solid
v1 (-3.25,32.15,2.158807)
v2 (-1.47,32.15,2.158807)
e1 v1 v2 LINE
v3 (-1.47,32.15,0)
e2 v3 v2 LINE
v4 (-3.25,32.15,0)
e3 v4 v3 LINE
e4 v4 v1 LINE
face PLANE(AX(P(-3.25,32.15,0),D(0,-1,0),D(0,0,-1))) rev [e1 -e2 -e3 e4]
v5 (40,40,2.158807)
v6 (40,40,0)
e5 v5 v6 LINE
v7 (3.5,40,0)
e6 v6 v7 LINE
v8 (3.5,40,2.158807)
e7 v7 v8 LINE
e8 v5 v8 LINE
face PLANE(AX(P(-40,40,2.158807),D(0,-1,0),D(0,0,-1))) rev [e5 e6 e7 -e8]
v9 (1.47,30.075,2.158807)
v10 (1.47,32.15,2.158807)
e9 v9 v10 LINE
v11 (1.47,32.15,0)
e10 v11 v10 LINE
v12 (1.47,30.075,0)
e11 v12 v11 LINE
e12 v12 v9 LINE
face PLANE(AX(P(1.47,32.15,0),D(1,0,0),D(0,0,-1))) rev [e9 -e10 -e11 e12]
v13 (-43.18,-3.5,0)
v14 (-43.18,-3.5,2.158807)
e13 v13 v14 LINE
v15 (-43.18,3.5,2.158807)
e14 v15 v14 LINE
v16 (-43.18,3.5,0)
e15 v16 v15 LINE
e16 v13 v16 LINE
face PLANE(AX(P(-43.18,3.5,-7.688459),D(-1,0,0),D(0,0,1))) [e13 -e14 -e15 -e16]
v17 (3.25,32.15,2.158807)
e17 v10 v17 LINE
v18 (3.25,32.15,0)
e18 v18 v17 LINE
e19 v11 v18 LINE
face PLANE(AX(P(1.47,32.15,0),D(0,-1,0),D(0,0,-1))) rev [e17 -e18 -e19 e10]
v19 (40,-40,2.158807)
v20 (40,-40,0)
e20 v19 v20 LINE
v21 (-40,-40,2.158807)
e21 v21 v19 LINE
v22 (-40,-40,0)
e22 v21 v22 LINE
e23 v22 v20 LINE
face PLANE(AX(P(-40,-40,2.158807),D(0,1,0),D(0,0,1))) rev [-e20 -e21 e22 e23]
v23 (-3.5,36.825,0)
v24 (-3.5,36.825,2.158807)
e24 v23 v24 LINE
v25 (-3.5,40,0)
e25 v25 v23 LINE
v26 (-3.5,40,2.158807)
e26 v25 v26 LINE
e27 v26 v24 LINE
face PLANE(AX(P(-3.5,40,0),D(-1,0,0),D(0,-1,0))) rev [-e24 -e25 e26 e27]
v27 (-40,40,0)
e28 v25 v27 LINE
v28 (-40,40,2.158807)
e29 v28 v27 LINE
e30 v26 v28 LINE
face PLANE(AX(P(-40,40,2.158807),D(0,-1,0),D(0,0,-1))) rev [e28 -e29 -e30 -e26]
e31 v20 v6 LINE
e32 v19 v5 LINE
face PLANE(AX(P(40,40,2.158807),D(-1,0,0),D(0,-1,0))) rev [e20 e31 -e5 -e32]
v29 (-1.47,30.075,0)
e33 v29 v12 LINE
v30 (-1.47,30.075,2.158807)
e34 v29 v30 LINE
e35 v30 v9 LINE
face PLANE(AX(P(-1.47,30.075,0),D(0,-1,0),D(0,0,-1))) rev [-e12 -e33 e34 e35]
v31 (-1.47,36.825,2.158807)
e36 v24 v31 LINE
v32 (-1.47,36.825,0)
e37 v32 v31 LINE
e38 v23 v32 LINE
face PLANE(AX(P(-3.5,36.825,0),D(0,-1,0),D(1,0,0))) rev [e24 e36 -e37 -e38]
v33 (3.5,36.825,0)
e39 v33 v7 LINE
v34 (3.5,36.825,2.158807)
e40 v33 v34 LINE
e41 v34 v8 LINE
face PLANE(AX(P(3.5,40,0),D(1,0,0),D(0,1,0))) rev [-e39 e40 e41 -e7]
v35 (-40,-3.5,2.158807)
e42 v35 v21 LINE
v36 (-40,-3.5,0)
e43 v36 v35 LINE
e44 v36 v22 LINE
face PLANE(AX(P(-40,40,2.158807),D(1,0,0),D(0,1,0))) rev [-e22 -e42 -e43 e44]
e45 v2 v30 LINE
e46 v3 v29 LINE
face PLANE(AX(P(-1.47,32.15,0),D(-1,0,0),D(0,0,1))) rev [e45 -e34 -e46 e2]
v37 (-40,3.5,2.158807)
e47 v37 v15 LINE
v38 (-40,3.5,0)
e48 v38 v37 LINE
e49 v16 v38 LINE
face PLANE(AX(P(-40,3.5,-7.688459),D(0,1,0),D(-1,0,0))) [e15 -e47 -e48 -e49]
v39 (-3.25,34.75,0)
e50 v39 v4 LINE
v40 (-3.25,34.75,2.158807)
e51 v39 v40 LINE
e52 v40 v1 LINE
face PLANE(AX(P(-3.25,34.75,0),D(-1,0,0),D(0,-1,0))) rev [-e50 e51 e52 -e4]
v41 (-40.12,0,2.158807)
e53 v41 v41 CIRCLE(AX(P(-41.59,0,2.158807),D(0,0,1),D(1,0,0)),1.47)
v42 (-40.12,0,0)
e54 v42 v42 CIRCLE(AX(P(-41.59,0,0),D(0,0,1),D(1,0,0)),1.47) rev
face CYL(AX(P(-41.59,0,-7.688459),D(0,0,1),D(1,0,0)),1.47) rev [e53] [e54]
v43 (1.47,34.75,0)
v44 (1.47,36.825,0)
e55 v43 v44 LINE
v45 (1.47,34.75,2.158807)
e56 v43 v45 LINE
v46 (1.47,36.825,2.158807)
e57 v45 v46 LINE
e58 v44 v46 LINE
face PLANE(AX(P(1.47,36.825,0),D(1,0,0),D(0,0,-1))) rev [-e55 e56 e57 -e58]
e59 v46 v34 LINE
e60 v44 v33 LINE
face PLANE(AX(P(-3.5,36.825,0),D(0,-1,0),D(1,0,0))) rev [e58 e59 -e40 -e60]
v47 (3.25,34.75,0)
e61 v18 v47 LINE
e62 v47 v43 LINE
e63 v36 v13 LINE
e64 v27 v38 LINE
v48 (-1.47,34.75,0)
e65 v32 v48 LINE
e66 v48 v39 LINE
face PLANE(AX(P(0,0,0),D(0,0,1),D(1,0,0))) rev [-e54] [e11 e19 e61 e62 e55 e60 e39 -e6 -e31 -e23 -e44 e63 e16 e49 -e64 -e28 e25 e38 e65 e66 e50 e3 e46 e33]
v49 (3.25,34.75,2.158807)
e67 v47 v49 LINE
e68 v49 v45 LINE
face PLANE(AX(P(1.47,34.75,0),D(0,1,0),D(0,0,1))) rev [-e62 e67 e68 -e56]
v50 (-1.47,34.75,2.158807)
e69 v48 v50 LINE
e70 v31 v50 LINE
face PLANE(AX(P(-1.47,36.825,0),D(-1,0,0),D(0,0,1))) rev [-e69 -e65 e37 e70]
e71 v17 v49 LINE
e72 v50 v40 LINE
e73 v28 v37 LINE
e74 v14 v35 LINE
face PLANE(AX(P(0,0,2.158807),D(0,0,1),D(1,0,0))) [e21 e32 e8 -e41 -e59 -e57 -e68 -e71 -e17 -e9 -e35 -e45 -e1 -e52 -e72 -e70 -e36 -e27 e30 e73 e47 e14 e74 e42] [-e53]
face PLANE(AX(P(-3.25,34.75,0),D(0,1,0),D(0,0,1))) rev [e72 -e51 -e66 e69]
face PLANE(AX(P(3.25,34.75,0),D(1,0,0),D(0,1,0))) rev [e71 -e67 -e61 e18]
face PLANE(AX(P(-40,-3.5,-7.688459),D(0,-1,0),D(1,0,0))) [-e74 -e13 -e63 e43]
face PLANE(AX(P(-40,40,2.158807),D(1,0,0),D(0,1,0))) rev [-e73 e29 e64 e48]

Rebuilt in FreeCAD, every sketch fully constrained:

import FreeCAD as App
import Part
import Sketcher


def add_polygon(sketch, points):
    """Adds a closed chain of lines whose ends are joined by coincident constraints."""
    first, n = sketch.GeometryCount, len(points)
    for a, b in zip(points, points[1:] + points[:1]):
        sketch.addGeometry(Part.LineSegment(App.Vector(*a, 0), App.Vector(*b, 0)), False)
    for i in range(n):
        sketch.addConstraint(Sketcher.Constraint("Coincident", first + i, 2, first + (i + 1) % n, 1))

doc = App.newDocument("Part")
params = doc.addObject("Spreadsheet::Sheet", "Params")
for row, (alias, value) in enumerate([
    ("sketch1_width", "80 mm"),
    ("pad1_length", "2.158807 mm"),
    ("sketch2_width", "7 mm"),
    ("sketch3_height", "2.6 mm"),
    ("sketch3_width", "1.78 mm"),
    ("sketch3_width2", "2.94 mm"),
    ("sketch4_diameter", "2.94 mm"),
    ("sketch4_height", "7 mm"),
    ("sketch4_width", "3.18 mm"),
    ("pad2_length", "2.158807 mm"),
], start=1):
    params.set(f"A{row}", alias)
    params.set(f"B{row}", "=" + value)
    params.setAlias(f"B{row}", alias)

body = doc.addObject("PartDesign::Body", "Body")

# Sketch on XY plane
sketch1 = body.newObject("Sketcher::SketchObject", "Sketch")
sketch1.AttachmentSupport = (doc.getObject("XY_Plane"), [""])
sketch1.MapMode = "FlatFace"
add_polygon(sketch1, [(-40, 40), (-40, -40), (40, -40), (40, 40)])  # lines 0-3
sketch1.addConstraint([
    Sketcher.Constraint("Vertical", 0),
    Sketcher.Constraint("Horizontal", 1),
    Sketcher.Constraint("Vertical", 2),
    Sketcher.Constraint("Horizontal", 3),
    Sketcher.Constraint("Symmetric", 0, 2, 2, 2, -1, 1),
    Sketcher.Constraint("Equal", 3, 0),
    Sketcher.Constraint("DistanceX", 1, 1, 1, 2, 80.0),
])
sketch1.setExpression("Constraints[10]", "Params.sketch1_width")
pad1 = body.newObject("PartDesign::Pad", "Pad")
pad1.Profile = sketch1
pad1.setExpression("Length", "Params.pad1_length")

# Sketch on XY plane
sketch2 = body.newObject("Sketcher::SketchObject", "Sketch001")
sketch2.AttachmentSupport = (doc.getObject("XY_Plane"), [""])
sketch2.MapMode = "FlatFace"
sketch2.AttachmentOffset = App.Placement(App.Vector(0, 0, 2.158807), App.Rotation())
add_polygon(sketch2, [(-3.5, 40), (-3.5, 36.8), (3.5, 36.8), (3.5, 40)])  # lines 0-3
sketch2.addConstraint([
    Sketcher.Constraint("Vertical", 0),
    Sketcher.Constraint("Horizontal", 1),
    Sketcher.Constraint("Vertical", 2),
    Sketcher.Constraint("Horizontal", 3),
    Sketcher.Constraint("DistanceX", 1, 1, 1, 2, 7.0),
    Sketcher.Constraint("DistanceY", -1, 1, 2, 2, 40.0),
    Sketcher.Constraint("DistanceX", 0, 2, -1, 1, 3.5),
    Sketcher.Constraint("DistanceY", 0, 2, 0, 1, 3.175),
])
sketch2.setExpression("Constraints[8]", "Params.sketch2_width")
pocket1 = body.newObject("PartDesign::Pocket", "Pocket")
pocket1.Profile = sketch2
pocket1.Type = "ThroughAll"

# Sketch on XY plane
sketch3 = body.newObject("Sketcher::SketchObject", "Sketch002")
sketch3.AttachmentSupport = (doc.getObject("XY_Plane"), [""])
sketch3.MapMode = "FlatFace"
sketch3.AttachmentOffset = App.Placement(App.Vector(0, 0, 2.158807), App.Rotation())
add_polygon(sketch3, [(3.2, 34.8), (1.5, 34.8), (1.5, 36.8), (-1.5, 36.8), (-1.5, 34.8), (-3.2, 34.8), (-3.2, 32.1), (-1.5, 32.1), (-1.5, 30.1), (1.5, 30.1), (1.5, 32.1), (3.2, 32.1)])  # lines 0-11
sketch3.addConstraint([
    Sketcher.Constraint("Horizontal", 0),
    Sketcher.Constraint("Vertical", 1),
    Sketcher.Constraint("Horizontal", 2),
    Sketcher.Constraint("Vertical", 3),
    Sketcher.Constraint("Horizontal", 4),
    Sketcher.Constraint("Vertical", 5),
    Sketcher.Constraint("Horizontal", 6),
    Sketcher.Constraint("Vertical", 7),
    Sketcher.Constraint("Horizontal", 8),
    Sketcher.Constraint("Vertical", 9),
    Sketcher.Constraint("Horizontal", 10),
    Sketcher.Constraint("Vertical", 11),
    Sketcher.Constraint("Symmetric", 0, 2, 3, 2, -2),
    Sketcher.Constraint("Symmetric", 6, 2, 9, 2, -2),
    Sketcher.Constraint("Vertical", 3, 2, 6, 2),
    Sketcher.Constraint("Equal", 0, 4),
    Sketcher.Constraint("Equal", 3, 7),
    Sketcher.Constraint("DistanceY", 5, 2, 5, 1, 2.6),
    Sketcher.Constraint("DistanceX", 0, 2, 0, 1, 1.78),
    Sketcher.Constraint("DistanceX", 2, 2, 2, 1, 2.94),
    Sketcher.Constraint("DistanceY", 1, 1, 1, 2, 2.075),
    Sketcher.Constraint("DistanceY", -1, 1, 0, 2, 34.75),
])
sketch3.setExpression("Constraints[29]", "Params.sketch3_height")
sketch3.setExpression("Constraints[30]", "Params.sketch3_width")
sketch3.setExpression("Constraints[31]", "Params.sketch3_width2")
pocket2 = body.newObject("PartDesign::Pocket", "Pocket001")
pocket2.Profile = sketch3
pocket2.Type = "ThroughAll"

# Sketch on XY plane
sketch4 = body.newObject("Sketcher::SketchObject", "Sketch003")
sketch4.AttachmentSupport = (doc.getObject("XY_Plane"), [""])
sketch4.MapMode = "FlatFace"
sketch4.AttachmentOffset = App.Placement(App.Vector(0, 0, 2.158807), App.Rotation())
add_polygon(sketch4, [(-43.2, 3.5), (-43.2, -3.5), (-40, -3.5), (-40, 3.5)])  # lines 0-3
sketch4.addGeometry(Part.Circle(App.Vector(-41.6, 0, 0), App.Vector(0, 0, 1), 1.5), False)  # 4
sketch4.addConstraint([
    Sketcher.Constraint("Vertical", 0),
    Sketcher.Constraint("Horizontal", 1),
    Sketcher.Constraint("Vertical", 2),
    Sketcher.Constraint("Horizontal", 3),
    Sketcher.Constraint("PointOnObject", 4, 3, -1),
    Sketcher.Constraint("Diameter", 4, 2.94),
    Sketcher.Constraint("DistanceY", 0, 2, 0, 1, 7.0),
    Sketcher.Constraint("DistanceX", 1, 2, -1, 1, 40.0),
    Sketcher.Constraint("DistanceX", 1, 1, 1, 2, 3.18),
    Sketcher.Constraint("DistanceY", 0, 2, -1, 1, 3.5),
    Sketcher.Constraint("DistanceX", 4, 3, -1, 1, 41.59),
])
sketch4.setExpression("Constraints[9]", "Params.sketch4_diameter")
sketch4.setExpression("Constraints[10]", "Params.sketch4_height")
sketch4.setExpression("Constraints[12]", "Params.sketch4_width")
pad2 = body.newObject("PartDesign::Pad", "Pad001")
pad2.Profile = sketch4
pad2.setExpression("Length", "Params.pad2_length")
pad2.Reversed = True

doc.recompute()
